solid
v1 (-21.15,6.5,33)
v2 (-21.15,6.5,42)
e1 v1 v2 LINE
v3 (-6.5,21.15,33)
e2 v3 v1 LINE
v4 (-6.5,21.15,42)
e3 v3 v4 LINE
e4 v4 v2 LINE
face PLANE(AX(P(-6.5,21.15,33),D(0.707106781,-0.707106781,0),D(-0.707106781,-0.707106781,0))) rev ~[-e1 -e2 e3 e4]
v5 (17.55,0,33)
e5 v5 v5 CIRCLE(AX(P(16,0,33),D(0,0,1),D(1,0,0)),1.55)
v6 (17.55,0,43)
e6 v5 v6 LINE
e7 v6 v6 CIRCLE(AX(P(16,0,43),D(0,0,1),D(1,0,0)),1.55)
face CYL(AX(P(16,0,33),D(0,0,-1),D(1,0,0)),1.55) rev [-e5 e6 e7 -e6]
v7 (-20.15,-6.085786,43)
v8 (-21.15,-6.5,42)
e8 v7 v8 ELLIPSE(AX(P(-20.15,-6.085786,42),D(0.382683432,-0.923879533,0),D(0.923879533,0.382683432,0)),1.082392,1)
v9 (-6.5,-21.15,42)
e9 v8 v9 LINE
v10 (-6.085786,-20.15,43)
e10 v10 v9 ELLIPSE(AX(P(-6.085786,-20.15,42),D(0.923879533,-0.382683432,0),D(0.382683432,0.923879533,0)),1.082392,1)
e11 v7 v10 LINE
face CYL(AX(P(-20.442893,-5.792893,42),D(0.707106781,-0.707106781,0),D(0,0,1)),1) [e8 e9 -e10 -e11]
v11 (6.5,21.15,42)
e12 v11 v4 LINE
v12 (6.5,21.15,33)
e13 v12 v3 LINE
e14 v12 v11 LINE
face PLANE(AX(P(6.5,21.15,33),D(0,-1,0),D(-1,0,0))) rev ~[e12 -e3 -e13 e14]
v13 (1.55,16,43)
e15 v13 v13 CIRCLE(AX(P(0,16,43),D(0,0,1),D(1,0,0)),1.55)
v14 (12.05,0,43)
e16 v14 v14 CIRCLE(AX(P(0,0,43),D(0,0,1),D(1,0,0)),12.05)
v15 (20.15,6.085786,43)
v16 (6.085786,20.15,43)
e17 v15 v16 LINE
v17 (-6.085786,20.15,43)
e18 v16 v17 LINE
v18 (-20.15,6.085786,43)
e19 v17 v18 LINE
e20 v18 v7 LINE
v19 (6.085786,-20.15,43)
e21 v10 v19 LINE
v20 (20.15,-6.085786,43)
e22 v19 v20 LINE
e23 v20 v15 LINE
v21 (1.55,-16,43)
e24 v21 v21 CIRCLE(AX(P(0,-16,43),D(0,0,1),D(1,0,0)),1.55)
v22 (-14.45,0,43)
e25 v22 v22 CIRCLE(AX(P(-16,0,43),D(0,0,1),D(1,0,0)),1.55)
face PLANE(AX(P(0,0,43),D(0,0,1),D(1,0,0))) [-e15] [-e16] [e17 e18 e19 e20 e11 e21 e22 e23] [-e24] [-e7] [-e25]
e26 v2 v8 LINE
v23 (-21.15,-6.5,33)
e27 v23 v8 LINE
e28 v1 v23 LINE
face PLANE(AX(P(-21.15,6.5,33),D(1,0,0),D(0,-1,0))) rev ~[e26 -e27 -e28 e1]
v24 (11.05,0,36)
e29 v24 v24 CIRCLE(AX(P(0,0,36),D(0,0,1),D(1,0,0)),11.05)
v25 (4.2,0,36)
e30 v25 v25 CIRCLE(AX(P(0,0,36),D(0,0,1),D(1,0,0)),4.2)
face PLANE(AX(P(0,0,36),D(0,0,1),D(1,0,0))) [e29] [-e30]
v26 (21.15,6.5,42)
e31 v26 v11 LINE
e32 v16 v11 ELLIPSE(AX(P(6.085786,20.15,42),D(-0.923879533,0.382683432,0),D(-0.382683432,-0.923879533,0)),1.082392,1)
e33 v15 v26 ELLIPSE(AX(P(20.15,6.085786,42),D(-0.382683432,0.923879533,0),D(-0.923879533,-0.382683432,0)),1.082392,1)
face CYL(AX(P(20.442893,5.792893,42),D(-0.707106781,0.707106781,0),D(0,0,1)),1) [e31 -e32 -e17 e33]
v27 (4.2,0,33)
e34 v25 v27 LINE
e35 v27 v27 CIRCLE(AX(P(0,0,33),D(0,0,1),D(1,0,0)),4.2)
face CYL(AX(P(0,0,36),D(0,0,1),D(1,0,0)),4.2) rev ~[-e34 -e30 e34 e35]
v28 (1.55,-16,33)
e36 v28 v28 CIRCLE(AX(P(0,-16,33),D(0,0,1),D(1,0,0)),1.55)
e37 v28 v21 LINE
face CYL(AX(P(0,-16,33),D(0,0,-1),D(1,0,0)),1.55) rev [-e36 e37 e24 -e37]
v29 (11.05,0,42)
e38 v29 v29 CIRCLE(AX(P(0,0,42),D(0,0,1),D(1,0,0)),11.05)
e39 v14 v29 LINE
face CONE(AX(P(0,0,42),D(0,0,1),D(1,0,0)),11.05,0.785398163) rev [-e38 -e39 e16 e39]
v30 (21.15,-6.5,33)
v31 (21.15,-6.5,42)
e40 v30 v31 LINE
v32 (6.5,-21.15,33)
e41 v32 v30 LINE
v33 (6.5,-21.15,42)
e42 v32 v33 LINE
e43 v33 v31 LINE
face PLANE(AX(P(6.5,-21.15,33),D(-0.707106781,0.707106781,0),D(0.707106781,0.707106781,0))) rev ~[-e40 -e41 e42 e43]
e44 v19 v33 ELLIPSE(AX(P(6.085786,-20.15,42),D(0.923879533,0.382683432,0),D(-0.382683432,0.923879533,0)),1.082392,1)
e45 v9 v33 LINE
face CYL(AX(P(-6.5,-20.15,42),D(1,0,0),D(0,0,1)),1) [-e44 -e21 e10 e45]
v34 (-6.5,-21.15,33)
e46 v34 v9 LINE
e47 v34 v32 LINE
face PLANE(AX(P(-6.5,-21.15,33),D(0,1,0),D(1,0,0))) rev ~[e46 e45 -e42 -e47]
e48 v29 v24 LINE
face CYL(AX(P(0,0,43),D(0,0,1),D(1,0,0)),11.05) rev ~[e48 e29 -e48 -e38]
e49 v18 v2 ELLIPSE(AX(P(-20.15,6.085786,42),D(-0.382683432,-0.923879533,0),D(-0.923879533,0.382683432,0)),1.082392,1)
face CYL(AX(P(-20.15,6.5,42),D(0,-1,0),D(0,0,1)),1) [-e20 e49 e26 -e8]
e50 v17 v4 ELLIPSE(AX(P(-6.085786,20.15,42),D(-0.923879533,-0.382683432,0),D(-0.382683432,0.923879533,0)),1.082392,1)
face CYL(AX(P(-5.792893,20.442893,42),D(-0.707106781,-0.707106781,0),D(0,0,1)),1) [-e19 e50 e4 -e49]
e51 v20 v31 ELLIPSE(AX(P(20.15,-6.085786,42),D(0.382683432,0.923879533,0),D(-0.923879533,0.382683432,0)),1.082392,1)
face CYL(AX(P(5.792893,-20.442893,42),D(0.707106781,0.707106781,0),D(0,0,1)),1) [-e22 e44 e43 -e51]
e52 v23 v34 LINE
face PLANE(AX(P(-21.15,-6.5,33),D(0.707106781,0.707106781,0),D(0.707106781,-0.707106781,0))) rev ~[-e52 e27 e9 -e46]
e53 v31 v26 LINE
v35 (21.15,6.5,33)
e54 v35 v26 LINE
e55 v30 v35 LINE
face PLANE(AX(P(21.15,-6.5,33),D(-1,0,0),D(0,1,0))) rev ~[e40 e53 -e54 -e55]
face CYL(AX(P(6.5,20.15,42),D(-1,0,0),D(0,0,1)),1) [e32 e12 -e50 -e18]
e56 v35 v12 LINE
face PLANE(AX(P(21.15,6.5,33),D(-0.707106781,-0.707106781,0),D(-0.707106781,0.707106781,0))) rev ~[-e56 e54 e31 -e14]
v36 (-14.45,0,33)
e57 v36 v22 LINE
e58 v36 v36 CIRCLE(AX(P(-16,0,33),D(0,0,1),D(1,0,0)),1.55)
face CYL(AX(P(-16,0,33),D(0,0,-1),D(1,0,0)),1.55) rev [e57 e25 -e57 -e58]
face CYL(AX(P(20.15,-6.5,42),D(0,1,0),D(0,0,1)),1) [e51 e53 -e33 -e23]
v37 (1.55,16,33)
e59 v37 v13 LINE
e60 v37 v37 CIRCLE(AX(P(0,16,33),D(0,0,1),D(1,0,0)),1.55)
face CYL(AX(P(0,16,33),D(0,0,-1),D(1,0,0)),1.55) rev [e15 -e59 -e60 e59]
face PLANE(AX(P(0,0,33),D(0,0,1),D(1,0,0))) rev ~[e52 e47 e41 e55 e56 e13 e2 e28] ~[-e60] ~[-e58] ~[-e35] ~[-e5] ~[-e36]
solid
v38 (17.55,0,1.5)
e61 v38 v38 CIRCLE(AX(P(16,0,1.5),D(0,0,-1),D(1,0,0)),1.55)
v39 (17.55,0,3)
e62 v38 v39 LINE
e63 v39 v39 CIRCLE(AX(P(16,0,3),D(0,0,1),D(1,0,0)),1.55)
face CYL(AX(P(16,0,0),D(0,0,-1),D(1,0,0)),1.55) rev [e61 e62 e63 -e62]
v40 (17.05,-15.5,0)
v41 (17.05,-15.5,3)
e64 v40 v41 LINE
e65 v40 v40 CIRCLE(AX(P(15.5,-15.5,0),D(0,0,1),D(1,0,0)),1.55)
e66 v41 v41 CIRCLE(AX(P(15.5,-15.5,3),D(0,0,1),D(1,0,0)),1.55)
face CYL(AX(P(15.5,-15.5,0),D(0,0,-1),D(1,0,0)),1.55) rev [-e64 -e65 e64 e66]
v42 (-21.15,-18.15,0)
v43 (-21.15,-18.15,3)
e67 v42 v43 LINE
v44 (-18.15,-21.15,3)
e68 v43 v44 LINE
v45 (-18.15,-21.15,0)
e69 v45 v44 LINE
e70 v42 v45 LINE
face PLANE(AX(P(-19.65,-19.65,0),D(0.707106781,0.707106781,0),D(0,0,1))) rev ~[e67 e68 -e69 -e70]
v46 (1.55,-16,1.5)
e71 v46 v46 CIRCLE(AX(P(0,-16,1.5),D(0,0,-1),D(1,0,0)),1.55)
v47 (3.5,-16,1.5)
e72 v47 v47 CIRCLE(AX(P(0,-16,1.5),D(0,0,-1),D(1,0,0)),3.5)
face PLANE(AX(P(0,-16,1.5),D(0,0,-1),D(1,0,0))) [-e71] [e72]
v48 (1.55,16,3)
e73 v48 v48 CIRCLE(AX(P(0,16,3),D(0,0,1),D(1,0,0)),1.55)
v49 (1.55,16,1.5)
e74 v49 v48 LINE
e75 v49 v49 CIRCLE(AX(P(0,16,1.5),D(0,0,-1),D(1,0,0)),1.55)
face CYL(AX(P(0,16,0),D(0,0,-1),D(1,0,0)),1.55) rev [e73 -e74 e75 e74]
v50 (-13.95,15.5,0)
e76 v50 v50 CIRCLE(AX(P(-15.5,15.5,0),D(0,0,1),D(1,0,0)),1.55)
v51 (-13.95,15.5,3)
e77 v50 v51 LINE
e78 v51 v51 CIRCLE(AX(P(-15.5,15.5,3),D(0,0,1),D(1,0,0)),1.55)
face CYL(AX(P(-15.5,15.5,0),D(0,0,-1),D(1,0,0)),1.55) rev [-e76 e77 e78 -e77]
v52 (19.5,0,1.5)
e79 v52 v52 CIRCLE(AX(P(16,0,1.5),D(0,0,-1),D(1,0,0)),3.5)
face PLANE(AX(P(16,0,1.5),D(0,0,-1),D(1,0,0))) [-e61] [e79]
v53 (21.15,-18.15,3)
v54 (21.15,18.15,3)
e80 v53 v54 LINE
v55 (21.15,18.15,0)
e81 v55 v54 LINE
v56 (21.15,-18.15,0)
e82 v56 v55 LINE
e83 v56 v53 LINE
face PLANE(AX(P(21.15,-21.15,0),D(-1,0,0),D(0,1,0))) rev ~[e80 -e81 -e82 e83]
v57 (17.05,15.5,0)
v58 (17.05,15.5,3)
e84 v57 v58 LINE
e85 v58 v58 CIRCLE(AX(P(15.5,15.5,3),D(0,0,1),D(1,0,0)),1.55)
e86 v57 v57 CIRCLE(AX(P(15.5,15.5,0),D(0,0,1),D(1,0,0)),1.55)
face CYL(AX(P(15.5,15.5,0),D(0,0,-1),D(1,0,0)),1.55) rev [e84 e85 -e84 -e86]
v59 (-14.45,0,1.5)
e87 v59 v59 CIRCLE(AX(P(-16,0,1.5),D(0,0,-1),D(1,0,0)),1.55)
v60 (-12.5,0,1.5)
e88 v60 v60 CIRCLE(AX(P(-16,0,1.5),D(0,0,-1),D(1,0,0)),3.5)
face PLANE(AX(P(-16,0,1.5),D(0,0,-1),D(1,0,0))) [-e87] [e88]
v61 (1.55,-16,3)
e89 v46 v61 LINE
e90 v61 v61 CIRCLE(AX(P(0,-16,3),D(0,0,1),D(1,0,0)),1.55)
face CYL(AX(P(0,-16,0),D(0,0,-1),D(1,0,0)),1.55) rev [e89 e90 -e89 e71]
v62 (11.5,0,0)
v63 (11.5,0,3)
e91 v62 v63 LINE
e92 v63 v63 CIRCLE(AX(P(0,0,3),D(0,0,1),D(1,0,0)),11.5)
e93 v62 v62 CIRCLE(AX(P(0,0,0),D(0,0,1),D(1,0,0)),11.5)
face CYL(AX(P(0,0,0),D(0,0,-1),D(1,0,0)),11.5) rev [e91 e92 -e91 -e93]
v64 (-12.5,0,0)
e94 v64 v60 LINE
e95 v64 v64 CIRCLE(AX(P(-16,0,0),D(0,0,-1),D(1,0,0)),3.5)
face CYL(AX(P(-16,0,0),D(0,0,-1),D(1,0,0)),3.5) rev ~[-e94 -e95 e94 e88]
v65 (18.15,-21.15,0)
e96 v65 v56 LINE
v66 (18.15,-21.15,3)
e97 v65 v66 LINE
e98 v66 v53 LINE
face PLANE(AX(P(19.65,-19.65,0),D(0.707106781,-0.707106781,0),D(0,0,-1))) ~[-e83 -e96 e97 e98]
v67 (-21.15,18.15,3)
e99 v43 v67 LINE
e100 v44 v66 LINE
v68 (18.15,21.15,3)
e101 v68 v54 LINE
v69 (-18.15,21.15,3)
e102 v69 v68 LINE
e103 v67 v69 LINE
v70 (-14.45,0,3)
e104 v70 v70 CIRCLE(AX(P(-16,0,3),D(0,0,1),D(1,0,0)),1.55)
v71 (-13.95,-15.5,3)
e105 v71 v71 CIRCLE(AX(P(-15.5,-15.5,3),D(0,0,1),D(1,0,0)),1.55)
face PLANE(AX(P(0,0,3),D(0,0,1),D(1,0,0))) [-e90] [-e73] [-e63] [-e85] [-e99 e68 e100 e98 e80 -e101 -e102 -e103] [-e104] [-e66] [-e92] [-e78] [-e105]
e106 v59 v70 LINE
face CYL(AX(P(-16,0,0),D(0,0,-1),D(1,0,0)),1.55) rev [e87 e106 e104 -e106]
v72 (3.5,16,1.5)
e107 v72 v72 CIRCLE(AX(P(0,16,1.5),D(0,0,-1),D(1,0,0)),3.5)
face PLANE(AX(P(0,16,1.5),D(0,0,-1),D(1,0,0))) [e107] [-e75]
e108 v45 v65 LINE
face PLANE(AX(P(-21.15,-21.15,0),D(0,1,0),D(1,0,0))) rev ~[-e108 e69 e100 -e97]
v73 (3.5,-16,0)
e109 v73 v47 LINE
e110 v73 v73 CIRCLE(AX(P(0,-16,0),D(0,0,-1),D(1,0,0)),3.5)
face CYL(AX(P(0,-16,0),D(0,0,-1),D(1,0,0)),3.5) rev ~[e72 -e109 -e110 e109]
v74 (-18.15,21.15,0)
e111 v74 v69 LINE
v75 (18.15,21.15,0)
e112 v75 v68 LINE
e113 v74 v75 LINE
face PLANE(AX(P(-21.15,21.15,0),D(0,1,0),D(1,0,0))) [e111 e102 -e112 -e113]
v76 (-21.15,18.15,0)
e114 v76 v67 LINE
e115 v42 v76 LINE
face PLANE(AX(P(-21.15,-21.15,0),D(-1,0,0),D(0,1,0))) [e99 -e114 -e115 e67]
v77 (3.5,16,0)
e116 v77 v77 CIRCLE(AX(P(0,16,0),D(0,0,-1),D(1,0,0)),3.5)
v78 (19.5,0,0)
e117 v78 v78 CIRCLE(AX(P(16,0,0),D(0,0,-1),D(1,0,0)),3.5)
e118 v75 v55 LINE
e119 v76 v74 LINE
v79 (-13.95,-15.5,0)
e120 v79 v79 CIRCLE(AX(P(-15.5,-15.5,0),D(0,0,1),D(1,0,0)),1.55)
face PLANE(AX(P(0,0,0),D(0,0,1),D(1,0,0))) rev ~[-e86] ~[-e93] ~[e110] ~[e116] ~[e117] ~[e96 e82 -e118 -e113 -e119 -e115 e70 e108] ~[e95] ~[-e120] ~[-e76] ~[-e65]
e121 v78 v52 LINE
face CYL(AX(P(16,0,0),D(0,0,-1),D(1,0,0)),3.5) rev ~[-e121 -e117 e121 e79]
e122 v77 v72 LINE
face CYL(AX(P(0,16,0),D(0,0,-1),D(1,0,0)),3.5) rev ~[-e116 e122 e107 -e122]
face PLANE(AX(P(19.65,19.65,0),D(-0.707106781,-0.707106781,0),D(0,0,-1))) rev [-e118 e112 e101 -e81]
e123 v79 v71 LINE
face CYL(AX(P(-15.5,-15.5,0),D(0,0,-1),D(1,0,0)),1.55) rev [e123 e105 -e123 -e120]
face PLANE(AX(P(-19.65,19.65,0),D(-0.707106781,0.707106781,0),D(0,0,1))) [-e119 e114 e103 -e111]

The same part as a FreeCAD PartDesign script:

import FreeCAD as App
import Part
import Sketcher
Q = App.Units.Quantity


def edges_at(feature, points):
    """Names of the edges that pass closest to the given points."""
    edges = feature.Shape.Edges
    near = lambda p: min(range(len(edges)), key=lambda i: edges[i].distToShape(Part.Vertex(*p))[0])
    return sorted({f"Edge{near(p) + 1}" for p in points})


def add_polygon(sketch, points):
    """Adds a closed chain of lines whose ends are joined by coincident constraints."""
    first, n = sketch.GeometryCount, len(points)
    for a, b in zip(points, points[1:] + points[:1]):
        sketch.addGeometry(Part.LineSegment(App.Vector(*a, 0), App.Vector(*b, 0)), False)
    for i in range(n):
        sketch.addConstraint(Sketcher.Constraint("Coincident", first + i, 2, first + (i + 1) % n, 1))

doc = App.newDocument("Part")
params = doc.addObject("Spreadsheet::Sheet", "Params")
for row, (alias, value) in enumerate([
    ("sketch1_diameter", "23 mm"),
    ("sketch1_diameter2", "3.1 mm"),
    ("sketch1_width", "42.3 mm"),
    ("pad1_length", "3 mm"),
    ("sketch2_diameter", "7 mm"),
    ("pocket1_length", "1.5 mm"),
    ("chamfer_size", "3 mm"),
    ("sketch3_diameter", "3.1 mm"),
    ("sketch3_width", "13 mm"),
    ("pad2_length", "10 mm"),
    ("sketch4_diameter", "22.1 mm"),
    ("pocket2_length", "7 mm"),
    ("chamfer2_size", "1 mm"),
    ("sketch5_diameter", "8.4 mm"),
    ("pocket3_length", "3 mm"),
    ("fillet_radius", "1 mm"),
], start=1):
    params.set(f"A{row}", alias)
    params.set(f"B{row}", "=" + value)
    params.setAlias(f"B{row}", alias)

body = doc.addObject("PartDesign::Body", "Body")

# Sketch on XY plane
sketch1 = body.newObject("Sketcher::SketchObject", "Sketch")
sketch1.AttachmentSupport = (doc.getObject("XY_Plane"), [""])
sketch1.MapMode = "FlatFace"
add_polygon(sketch1, [(-21.15, 21.15), (-21.15, -21.15), (21.15, -21.15), (21.15, 21.15)])  # lines 0-3
sketch1.addGeometry(Part.Circle(App.Vector(-15.5, -15.5, 0), App.Vector(0, 0, 1), 1.55), False)  # 4
sketch1.addGeometry(Part.Circle(App.Vector(0, -16, 0), App.Vector(0, 0, 1), 1.55), False)  # 5
sketch1.addGeometry(Part.Circle(App.Vector(15.5, -15.5, 0), App.Vector(0, 0, 1), 1.55), False)  # 6
sketch1.addGeometry(Part.Circle(App.Vector(-16, 0, 0), App.Vector(0, 0, 1), 1.55), False)  # 7
sketch1.addGeometry(Part.Circle(App.Vector(-15.5, 15.5, 0), App.Vector(0, 0, 1), 1.55), False)  # 8
sketch1.addGeometry(Part.Circle(App.Vector(0, 0, 0), App.Vector(0, 0, 1), 11.5), False)  # 9
sketch1.addGeometry(Part.Circle(App.Vector(16, 0, 0), App.Vector(0, 0, 1), 1.55), False)  # 10
sketch1.addGeometry(Part.Circle(App.Vector(0, 16, 0), App.Vector(0, 0, 1), 1.55), False)  # 11
sketch1.addGeometry(Part.Circle(App.Vector(15.5, 15.5, 0), App.Vector(0, 0, 1), 1.55), False)  # 12
sketch1.addConstraint([
    Sketcher.Constraint("Vertical", 0),
    Sketcher.Constraint("Horizontal", 1),
    Sketcher.Constraint("Vertical", 2),
    Sketcher.Constraint("Horizontal", 3),
    Sketcher.Constraint("Coincident", 9, 3, -1, 1),
    Sketcher.Constraint("Equal", 4, 5),
    Sketcher.Constraint("Equal", 5, 6),
    Sketcher.Constraint("Equal", 6, 7),
    Sketcher.Constraint("Equal", 7, 8),
    Sketcher.Constraint("Equal", 8, 10),
    Sketcher.Constraint("Equal", 10, 11),
    Sketcher.Constraint("Equal", 11, 12),
    Sketcher.Constraint("Symmetric", 6, 3, 8, 3, -1, 1),
    Sketcher.Constraint("Symmetric", 7, 3, 10, 3, -1, 1),
    Sketcher.Constraint("Symmetric", 5, 3, 11, 3, -1, 1),
    Sketcher.Constraint("Symmetric", 4, 3, 12, 3, -1, 1),
    Sketcher.Constraint("Symmetric", 0, 2, 2, 2, -1, 1),
    Sketcher.Constraint("Symmetric", 4, 3, 6, 3, -2),
    Sketcher.Constraint("PointOnObject", 5, 3, -2),
    Sketcher.Constraint("PointOnObject", 7, 3, -1),
    Sketcher.Constraint("Equal", 3, 0),
    Sketcher.Constraint("Diameter", 9, Q("23 mm")),
    Sketcher.Constraint("Diameter", 4, Q("3.1 mm")),
    Sketcher.Constraint("DistanceX", 1, 1, 1, 2, Q("42.3 mm")),
    Sketcher.Constraint("DistanceY", 5, 3, -1, 1, Q("16 mm")),
    Sketcher.Constraint("DistanceX", 7, 3, -1, 1, Q("16 mm")),
    Sketcher.Constraint("DistanceX", 4, 3, 6, 3, Q("31 mm")),
    Sketcher.Constraint("DistanceY", 4, 3, 8, 3, Q("31 mm")),
])
sketch1.setExpression("Constraints[25]", "Params.sketch1_diameter")
sketch1.setExpression("Constraints[26]", "Params.sketch1_diameter2")
sketch1.setExpression("Constraints[27]", "Params.sketch1_width")
pad1 = body.newObject("PartDesign::Pad", "Pad")
pad1.Profile = sketch1
pad1.setExpression("Length", "Params.pad1_length")

# Sketch on XY plane
sketch2 = body.newObject("Sketcher::SketchObject", "Sketch001")
sketch2.AttachmentSupport = (doc.getObject("XY_Plane"), [""])
sketch2.MapMode = "FlatFace"
sketch2.addGeometry([
    Part.Circle(App.Vector(-16, 0, 0), App.Vector(0, 0, 1), 3.5),
    Part.Circle(App.Vector(16, 0, 0), App.Vector(0, 0, 1), 3.5),
    Part.Circle(App.Vector(0, -16, 0), App.Vector(0, 0, 1), 3.5),
    Part.Circle(App.Vector(0, 16, 0), App.Vector(0, 0, 1), 3.5),
], False)
sketch2.addConstraint([
    Sketcher.Constraint("Equal", 0, 1),
    Sketcher.Constraint("Equal", 1, 2),
    Sketcher.Constraint("Equal", 2, 3),
    Sketcher.Constraint("Symmetric", 0, 3, 1, 3, -1, 1),
    Sketcher.Constraint("Symmetric", 2, 3, 3, 3, -1, 1),
    Sketcher.Constraint("PointOnObject", 0, 3, -1),
    Sketcher.Constraint("PointOnObject", 2, 3, -2),
    Sketcher.Constraint("Diameter", 0, Q("7 mm")),
    Sketcher.Constraint("DistanceX", 0, 3, -1, 1, Q("16 mm")),
    Sketcher.Constraint("DistanceY", 2, 3, -1, 1, Q("16 mm")),
])
sketch2.setExpression("Constraints[7]", "Params.sketch2_diameter")
pocket1 = body.newObject("PartDesign::Pocket", "Pocket")
pocket1.Profile = sketch2
pocket1.setExpression("Length", "Params.pocket1_length")
pocket1.Reversed = True
doc.recompute()

chamfer = body.newObject("PartDesign::Chamfer", "Chamfer")
chamfer.Base = (pocket1, edges_at(pocket1, [
    (-21.15, -21.15, 1.5),
    (-21.15, 21.15, 1.5),
    (21.15, 21.15, 1.5),
    (21.15, -21.15, 1.5),
]))
chamfer.setExpression("Size", "Params.chamfer_size")
body2 = doc.addObject("PartDesign::Body", "Body001")

# Sketch on XY plane
sketch3 = body2.newObject("Sketcher::SketchObject", "Sketch002")
sketch3.AttachmentSupport = (doc.getObject("XY_Plane001"), [""])
sketch3.MapMode = "FlatFace"
sketch3.AttachmentOffset = App.Placement(App.Vector(0, 0, 33), App.Rotation())
add_polygon(sketch3, [(21.15, -6.5), (21.15, 6.5), (6.5, 21.15), (-6.5, 21.15), (-21.15, 6.5), (-21.15, -6.5), (-6.5, -21.15), (6.5, -21.15)])  # lines 0-7
sketch3.addGeometry(Part.Circle(App.Vector(0, -16, 0), App.Vector(0, 0, 1), 1.55), False)  # 8
sketch3.addGeometry(Part.Circle(App.Vector(-16, 0, 0), App.Vector(0, 0, 1), 1.55), False)  # 9
sketch3.addGeometry(Part.Circle(App.Vector(16, 0, 0), App.Vector(0, 0, 1), 1.55), False)  # 10
sketch3.addGeometry(Part.Circle(App.Vector(0, 16, 0), App.Vector(0, 0, 1), 1.55), False)  # 11
sketch3.addConstraint([
    Sketcher.Constraint("Vertical", 0),
    Sketcher.Constraint("Horizontal", 2),
    Sketcher.Constraint("Vertical", 4),
    Sketcher.Constraint("Horizontal", 6),
    Sketcher.Constraint("Equal", 8, 9),
    Sketcher.Constraint("Equal", 9, 10),
    Sketcher.Constraint("Equal", 10, 11),
    Sketcher.Constraint("Symmetric", 9, 3, 10, 3, -1, 1),
    Sketcher.Constraint("Symmetric", 8, 3, 11, 3, -1, 1),
    Sketcher.Constraint("Symmetric", 0, 2, 4, 2, -1, 1),
    Sketcher.Constraint("Symmetric", 1, 2, 5, 2, -1, 1),
    Sketcher.Constraint("PointOnObject", 8, 3, -2),
    Sketcher.Constraint("PointOnObject", 9, 3, -1),
    Sketcher.Constraint("Perpendicular", 1, 3),
    Sketcher.Constraint("Perpendicular", 5, 7),
    Sketcher.Constraint("Horizontal", 0, 2, 3, 2),
    Sketcher.Constraint("Horizontal", 4, 2, 7, 2),
    Sketcher.Constraint("Vertical", 2, 2, 5, 2),
    Sketcher.Constraint("Equal", 6, 0),
    Sketcher.Constraint("Diameter", 8, Q("3.1 mm")),
    Sketcher.Constraint("DistanceX", 2, 2, 2, 1, Q("13 mm")),
    Sketcher.Constraint("DistanceY", 8, 3, -1, 1, Q("16 mm")),
    Sketcher.Constraint("DistanceX", 9, 3, -1, 1, Q("16 mm")),
    Sketcher.Constraint("DistanceX", -1, 1, 0, 2, Q("21.15 mm")),
])
sketch3.setExpression("Constraints[27]", "Params.sketch3_diameter")
sketch3.setExpression("Constraints[28]", "Params.sketch3_width")
pad2 = body2.newObject("PartDesign::Pad", "Pad001")
pad2.Profile = sketch3
pad2.setExpression("Length", "Params.pad2_length")

# Sketch on XY plane
sketch4 = body2.newObject("Sketcher::SketchObject", "Sketch003")
sketch4.AttachmentSupport = (doc.getObject("XY_Plane001"), [""])
sketch4.MapMode = "FlatFace"
sketch4.AttachmentOffset = App.Placement(App.Vector(0, 0, 43), App.Rotation())
sketch4.addGeometry(Part.Circle(App.Vector(0, 0, 0), App.Vector(0, 0, 1), 11.05), False)
sketch4.addConstraint([
    Sketcher.Constraint("Coincident", 0, 3, -1, 1),
    Sketcher.Constraint("Diameter", 0, Q("22.1 mm")),
])
sketch4.setExpression("Constraints[1]", "Params.sketch4_diameter")
pocket2 = body2.newObject("PartDesign::Pocket", "Pocket001")
pocket2.Profile = sketch4
pocket2.setExpression("Length", "Params.pocket2_length")
doc.recompute()

chamfer2 = body2.newObject("PartDesign::Chamfer", "Chamfer001")
chamfer2.Base = (pocket2, edges_at(pocket2, [(-11.05, 0, 43)]))
chamfer2.setExpression("Size", "Params.chamfer2_size")

# Sketch on XY plane
sketch5 = body2.newObject("Sketcher::SketchObject", "Sketch004")
sketch5.AttachmentSupport = (doc.getObject("XY_Plane001"), [""])
sketch5.MapMode = "FlatFace"
sketch5.AttachmentOffset = App.Placement(App.Vector(0, 0, 36), App.Rotation())
sketch5.addGeometry(Part.Circle(App.Vector(0, 0, 0), App.Vector(0, 0, 1), 4.2), False)
sketch5.addConstraint([
    Sketcher.Constraint("Coincident", 0, 3, -1, 1),
    Sketcher.Constraint("Diameter", 0, Q("8.4 mm")),
])
sketch5.setExpression("Constraints[1]", "Params.sketch5_diameter")
pocket3 = body2.newObject("PartDesign::Pocket", "Pocket002")
pocket3.Profile = sketch5
pocket3.setExpression("Length", "Params.pocket3_length")
doc.recompute()

fillet = body2.newObject("PartDesign::Fillet", "Fillet")
fillet.Base = (pocket3, edges_at(pocket3, [
    (0, 21.15, 43),
    (-13.825, 13.825, 43),
    (13.825, 13.825, 43),
    (21.15, 0, 43),
    (13.825, -13.825, 43),
    (0, -21.15, 43),
    (-13.825, -13.825, 43),
    (-21.15, 0, 43),
]))
fillet.setExpression("Radius", "Params.fillet_radius")

doc.recompute()
